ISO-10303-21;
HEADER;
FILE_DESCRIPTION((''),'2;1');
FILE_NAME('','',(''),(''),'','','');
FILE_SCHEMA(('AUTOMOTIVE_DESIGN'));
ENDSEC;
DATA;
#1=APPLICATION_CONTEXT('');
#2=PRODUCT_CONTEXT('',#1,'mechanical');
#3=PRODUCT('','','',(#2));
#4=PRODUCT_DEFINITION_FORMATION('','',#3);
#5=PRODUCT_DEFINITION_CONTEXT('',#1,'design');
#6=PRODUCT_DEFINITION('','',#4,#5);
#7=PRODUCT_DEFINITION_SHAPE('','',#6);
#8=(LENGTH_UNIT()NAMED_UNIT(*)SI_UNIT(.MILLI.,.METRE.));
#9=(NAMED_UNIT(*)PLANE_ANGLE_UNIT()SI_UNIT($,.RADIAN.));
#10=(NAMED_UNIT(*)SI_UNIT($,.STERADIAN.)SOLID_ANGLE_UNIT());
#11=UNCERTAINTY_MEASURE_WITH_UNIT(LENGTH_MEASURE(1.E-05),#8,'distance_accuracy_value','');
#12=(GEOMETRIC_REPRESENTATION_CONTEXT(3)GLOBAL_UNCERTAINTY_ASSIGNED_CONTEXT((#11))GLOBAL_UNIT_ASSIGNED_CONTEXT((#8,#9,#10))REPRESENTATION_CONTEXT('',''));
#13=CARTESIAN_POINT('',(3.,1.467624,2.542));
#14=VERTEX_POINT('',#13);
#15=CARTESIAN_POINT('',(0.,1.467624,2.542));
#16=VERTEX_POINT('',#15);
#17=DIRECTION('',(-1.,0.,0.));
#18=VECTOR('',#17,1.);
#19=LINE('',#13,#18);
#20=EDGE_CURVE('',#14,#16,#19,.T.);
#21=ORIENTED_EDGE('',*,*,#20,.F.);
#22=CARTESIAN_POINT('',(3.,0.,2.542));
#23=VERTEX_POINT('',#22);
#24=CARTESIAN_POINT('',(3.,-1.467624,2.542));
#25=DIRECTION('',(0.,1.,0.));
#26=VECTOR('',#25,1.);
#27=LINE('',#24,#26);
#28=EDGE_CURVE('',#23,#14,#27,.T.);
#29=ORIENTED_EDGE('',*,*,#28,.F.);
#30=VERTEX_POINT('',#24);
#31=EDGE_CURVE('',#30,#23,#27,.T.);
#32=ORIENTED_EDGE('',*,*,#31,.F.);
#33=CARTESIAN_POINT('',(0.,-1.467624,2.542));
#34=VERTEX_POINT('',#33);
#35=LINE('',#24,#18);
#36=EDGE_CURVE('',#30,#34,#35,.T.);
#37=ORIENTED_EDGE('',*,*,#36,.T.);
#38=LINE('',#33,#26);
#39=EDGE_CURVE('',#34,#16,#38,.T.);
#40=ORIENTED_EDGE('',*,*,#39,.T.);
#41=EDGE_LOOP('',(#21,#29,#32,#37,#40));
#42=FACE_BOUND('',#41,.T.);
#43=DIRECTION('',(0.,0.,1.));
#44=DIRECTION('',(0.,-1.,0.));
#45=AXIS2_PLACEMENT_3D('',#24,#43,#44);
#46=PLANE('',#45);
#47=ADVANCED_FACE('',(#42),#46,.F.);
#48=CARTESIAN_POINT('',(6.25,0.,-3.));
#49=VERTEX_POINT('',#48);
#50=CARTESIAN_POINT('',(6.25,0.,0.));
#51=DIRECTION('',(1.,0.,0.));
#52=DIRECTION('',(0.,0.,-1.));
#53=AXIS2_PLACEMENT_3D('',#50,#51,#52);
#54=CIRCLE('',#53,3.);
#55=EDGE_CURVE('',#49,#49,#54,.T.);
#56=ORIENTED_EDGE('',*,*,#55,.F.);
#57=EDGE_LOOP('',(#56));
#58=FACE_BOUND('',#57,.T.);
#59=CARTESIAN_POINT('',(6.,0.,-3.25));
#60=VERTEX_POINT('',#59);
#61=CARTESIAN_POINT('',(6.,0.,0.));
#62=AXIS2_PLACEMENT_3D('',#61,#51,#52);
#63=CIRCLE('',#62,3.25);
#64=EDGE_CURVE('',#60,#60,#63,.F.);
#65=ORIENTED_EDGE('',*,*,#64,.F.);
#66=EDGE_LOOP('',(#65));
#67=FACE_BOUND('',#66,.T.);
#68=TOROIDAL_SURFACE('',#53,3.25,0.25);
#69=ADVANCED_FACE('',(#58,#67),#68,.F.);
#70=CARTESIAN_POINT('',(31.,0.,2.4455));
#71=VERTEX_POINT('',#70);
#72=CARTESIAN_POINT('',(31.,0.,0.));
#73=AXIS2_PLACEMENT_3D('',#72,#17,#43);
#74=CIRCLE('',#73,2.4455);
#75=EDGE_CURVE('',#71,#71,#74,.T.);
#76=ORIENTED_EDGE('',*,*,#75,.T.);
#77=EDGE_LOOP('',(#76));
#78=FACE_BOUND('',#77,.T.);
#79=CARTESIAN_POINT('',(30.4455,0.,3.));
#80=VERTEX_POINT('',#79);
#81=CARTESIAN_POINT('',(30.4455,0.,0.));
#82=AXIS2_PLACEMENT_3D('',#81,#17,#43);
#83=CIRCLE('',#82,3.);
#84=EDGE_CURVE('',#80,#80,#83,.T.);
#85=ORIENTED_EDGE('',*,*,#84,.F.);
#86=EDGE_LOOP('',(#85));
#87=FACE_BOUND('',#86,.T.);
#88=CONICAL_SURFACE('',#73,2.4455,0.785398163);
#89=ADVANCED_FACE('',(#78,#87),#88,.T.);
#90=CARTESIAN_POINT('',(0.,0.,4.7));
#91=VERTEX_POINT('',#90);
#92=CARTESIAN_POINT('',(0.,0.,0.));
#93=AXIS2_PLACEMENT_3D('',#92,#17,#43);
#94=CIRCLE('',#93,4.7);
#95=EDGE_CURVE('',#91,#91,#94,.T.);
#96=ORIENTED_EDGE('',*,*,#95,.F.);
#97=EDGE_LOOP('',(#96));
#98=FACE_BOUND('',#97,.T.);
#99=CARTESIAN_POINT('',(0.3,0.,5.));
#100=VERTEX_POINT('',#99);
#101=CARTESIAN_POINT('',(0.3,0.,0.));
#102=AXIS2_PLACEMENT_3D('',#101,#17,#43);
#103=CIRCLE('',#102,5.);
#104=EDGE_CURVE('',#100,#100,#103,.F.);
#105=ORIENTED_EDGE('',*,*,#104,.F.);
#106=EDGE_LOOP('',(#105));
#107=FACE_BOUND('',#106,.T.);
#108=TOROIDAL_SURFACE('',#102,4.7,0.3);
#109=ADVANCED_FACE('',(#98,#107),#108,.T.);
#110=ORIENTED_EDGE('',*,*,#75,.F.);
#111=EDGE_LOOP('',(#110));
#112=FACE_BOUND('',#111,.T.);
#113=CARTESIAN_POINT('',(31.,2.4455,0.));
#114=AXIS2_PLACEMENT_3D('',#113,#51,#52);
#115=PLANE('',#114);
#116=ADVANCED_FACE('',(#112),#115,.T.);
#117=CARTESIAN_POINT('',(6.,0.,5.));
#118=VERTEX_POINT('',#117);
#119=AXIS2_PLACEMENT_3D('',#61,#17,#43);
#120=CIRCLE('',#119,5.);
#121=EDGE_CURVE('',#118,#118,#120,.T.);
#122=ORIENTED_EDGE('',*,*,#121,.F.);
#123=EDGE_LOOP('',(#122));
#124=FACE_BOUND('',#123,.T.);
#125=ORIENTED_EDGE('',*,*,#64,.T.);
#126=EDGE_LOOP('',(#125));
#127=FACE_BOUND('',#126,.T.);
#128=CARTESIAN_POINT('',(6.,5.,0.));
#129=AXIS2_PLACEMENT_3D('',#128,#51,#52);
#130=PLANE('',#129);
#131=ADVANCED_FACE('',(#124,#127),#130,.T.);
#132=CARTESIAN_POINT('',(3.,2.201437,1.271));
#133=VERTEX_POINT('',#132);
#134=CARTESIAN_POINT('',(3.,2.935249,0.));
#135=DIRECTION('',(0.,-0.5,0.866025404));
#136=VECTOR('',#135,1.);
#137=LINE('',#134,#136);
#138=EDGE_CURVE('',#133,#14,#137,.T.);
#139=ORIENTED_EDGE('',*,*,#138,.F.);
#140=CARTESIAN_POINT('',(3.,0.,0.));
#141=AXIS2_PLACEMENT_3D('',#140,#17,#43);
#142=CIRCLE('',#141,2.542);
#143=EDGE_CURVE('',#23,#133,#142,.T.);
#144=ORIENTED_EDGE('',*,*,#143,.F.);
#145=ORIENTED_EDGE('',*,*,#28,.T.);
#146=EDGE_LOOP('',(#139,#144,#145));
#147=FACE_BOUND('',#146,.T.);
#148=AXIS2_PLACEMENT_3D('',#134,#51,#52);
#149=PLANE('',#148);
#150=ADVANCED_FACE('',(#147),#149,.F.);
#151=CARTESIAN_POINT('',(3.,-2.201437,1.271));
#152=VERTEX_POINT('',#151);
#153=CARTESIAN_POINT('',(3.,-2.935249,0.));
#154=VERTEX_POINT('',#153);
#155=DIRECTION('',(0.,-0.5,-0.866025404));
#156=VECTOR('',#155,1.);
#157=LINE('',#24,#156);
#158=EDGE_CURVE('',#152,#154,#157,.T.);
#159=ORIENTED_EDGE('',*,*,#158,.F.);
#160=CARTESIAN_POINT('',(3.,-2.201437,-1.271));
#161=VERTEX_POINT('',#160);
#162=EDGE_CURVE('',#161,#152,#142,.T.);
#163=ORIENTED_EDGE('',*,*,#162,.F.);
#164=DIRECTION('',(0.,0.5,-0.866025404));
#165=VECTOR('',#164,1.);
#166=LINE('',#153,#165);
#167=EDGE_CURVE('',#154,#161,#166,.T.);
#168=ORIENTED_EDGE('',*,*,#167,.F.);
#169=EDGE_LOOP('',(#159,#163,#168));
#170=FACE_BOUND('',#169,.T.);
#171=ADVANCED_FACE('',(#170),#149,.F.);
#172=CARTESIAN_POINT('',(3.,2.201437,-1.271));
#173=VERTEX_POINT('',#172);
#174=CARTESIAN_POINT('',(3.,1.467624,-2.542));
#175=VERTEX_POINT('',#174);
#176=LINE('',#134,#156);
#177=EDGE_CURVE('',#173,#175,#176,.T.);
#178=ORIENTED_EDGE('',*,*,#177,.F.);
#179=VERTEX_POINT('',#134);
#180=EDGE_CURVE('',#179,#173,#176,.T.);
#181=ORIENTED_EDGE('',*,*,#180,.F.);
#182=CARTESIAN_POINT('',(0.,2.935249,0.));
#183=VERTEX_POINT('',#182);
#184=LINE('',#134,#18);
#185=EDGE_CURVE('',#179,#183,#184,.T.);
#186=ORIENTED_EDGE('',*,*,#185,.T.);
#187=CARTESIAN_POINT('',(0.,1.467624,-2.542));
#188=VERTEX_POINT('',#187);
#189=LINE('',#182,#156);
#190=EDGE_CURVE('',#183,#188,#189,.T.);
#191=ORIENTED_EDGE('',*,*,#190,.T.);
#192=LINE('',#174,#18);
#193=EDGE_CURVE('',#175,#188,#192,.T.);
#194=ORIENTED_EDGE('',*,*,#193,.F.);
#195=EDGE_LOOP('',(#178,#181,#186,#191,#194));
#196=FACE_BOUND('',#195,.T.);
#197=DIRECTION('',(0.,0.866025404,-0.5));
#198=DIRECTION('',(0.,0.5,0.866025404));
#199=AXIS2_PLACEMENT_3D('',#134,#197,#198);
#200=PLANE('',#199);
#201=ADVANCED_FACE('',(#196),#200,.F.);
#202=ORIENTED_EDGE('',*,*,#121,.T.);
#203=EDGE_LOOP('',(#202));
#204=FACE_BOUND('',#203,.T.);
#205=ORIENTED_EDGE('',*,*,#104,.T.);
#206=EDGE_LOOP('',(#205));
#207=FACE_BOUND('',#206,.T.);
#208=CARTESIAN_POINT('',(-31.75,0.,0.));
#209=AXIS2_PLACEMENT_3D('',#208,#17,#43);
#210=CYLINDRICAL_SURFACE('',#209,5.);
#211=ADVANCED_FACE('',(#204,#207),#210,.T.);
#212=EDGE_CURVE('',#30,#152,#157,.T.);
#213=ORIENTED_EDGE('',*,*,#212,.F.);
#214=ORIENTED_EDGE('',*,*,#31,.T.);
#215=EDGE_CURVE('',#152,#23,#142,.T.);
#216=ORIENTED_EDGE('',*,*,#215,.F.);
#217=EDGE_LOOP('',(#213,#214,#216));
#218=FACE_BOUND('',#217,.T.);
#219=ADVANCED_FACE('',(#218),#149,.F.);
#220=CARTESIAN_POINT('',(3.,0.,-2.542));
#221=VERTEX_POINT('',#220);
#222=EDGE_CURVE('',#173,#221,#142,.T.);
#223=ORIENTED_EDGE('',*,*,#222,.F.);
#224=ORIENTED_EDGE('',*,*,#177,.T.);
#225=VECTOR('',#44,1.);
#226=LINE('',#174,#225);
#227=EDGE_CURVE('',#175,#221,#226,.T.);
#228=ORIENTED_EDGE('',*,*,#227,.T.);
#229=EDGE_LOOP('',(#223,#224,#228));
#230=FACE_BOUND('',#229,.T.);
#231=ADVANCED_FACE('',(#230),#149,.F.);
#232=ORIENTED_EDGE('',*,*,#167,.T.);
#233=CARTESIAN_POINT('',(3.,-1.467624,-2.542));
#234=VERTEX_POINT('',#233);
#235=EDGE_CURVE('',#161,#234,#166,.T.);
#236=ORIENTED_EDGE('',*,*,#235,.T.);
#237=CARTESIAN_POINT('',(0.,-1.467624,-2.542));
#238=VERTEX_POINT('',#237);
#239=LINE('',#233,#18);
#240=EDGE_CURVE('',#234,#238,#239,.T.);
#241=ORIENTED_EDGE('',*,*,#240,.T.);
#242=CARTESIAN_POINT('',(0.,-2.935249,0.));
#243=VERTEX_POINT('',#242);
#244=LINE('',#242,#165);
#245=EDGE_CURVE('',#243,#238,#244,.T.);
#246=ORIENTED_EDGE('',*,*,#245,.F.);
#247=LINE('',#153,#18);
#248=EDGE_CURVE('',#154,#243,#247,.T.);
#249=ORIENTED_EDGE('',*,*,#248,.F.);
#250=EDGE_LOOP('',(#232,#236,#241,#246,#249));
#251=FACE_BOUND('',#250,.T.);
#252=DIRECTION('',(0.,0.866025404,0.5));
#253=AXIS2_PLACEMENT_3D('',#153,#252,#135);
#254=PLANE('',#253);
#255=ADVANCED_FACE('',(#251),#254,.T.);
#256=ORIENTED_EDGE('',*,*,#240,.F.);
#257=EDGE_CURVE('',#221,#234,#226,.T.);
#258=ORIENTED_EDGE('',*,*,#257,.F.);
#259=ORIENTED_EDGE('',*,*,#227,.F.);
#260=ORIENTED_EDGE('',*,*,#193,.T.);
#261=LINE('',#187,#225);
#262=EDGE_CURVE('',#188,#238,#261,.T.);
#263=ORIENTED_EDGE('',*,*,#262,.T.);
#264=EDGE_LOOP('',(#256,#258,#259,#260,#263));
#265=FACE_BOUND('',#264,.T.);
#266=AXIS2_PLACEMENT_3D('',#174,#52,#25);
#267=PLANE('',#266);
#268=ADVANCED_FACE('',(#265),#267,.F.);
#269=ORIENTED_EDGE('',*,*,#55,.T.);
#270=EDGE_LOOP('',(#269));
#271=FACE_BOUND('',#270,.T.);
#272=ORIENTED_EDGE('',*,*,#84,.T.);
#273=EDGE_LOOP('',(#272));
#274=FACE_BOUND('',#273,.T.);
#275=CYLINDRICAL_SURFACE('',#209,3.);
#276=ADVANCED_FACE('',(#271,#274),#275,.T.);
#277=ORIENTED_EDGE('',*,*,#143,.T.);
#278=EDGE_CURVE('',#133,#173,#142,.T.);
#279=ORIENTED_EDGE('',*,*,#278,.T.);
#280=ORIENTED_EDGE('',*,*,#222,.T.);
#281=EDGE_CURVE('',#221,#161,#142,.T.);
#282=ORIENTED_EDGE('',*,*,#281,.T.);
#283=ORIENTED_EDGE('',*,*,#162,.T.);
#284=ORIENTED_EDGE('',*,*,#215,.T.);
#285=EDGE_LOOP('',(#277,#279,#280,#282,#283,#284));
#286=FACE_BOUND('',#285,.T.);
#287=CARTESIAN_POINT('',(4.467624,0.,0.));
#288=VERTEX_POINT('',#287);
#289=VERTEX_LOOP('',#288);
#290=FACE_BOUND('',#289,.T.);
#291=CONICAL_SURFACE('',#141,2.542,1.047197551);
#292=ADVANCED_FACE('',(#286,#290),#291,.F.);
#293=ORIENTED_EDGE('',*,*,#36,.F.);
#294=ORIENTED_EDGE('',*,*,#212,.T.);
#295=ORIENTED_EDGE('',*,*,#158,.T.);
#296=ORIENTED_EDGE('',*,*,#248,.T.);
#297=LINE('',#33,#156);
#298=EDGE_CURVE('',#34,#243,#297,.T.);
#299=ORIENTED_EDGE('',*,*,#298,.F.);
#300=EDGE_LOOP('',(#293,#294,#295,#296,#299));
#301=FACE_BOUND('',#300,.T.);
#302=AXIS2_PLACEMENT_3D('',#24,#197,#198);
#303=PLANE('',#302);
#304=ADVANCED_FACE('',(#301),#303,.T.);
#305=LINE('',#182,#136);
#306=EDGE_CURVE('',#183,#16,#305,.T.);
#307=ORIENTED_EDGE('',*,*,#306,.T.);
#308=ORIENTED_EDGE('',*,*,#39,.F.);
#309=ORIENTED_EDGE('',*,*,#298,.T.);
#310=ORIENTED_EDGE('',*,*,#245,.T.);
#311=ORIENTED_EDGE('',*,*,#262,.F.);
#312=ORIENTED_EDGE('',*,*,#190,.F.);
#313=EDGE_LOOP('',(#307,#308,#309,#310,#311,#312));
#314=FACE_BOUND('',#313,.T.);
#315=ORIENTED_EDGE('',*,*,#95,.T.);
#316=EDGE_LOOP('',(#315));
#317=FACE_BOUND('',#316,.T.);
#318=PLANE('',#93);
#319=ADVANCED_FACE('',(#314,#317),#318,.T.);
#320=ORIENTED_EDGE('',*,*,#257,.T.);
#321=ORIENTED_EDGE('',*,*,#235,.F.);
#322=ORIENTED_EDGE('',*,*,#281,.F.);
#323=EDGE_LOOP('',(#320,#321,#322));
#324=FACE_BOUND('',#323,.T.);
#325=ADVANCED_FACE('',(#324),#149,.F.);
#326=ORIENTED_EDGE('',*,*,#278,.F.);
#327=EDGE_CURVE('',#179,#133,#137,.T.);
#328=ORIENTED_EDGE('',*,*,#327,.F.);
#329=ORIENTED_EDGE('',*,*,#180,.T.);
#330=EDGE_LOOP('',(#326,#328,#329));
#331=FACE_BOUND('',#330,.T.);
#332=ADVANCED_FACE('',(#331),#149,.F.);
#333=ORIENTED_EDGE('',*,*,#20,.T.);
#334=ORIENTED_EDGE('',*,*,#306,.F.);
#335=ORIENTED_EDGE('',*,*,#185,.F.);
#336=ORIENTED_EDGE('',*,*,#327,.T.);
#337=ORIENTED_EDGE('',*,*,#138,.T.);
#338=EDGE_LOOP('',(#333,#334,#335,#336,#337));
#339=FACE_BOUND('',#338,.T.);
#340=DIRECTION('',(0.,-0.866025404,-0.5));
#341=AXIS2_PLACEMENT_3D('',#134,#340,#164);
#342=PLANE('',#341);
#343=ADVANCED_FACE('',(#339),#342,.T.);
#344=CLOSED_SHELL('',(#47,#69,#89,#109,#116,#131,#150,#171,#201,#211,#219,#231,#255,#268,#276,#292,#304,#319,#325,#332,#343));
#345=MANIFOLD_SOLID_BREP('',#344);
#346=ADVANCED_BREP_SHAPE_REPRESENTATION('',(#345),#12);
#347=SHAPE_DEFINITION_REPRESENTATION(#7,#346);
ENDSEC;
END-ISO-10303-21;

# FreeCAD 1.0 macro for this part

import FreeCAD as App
import Part
import Sketcher
Q = App.Units.Quantity


def edges_at(feature, points):
    """Names of the edges that pass closest to the given points."""
    edges = feature.Shape.Edges
    near = lambda p: min(range(len(edges)), key=lambda i: edges[i].distToShape(Part.Vertex(*p))[0])
    return sorted({f"Edge{near(p) + 1}" for p in points})


def add_polygon(sketch, points):
    """Adds a closed chain of lines whose ends are joined by coincident constraints."""
    first, n = sketch.GeometryCount, len(points)
    for a, b in zip(points, points[1:] + points[:1]):
        sketch.addGeometry(Part.LineSegment(App.Vector(*a, 0), App.Vector(*b, 0)), False)
    for i in range(n):
        sketch.addConstraint(Sketcher.Constraint("Coincident", first + i, 2, first + (i + 1) % n, 1))

doc = App.newDocument("Part")
body = doc.addObject("PartDesign::Body", "Body")

sketch1 = body.newObject("Sketcher::SketchObject", "Sketch")
sketch1.AttachmentSupport = (doc.getObject("XY_Plane"), [""])
sketch1.MapMode = "FlatFace"
add_polygon(sketch1, [(0, 5), (0, 0), (31, 0), (31, 2.4), (30.4, 3), (6, 3), (6, 5)])
sketch1.addConstraint(Sketcher.Constraint("Vertical", 0))
sketch1.addConstraint(Sketcher.Constraint("Horizontal", 1))
sketch1.addConstraint(Sketcher.Constraint("Vertical", 2))
sketch1.addConstraint(Sketcher.Constraint("Horizontal", 4))
sketch1.addConstraint(Sketcher.Constraint("Vertical", 5))
sketch1.addConstraint(Sketcher.Constraint("Horizontal", 6))
sketch1.addConstraint(Sketcher.Constraint("Coincident", 0, 2, -1, 1))
sketch1.addConstraint(Sketcher.Constraint("DistanceX", 1, 1, 1, 2, 31.0))
sketch1.addConstraint(Sketcher.Constraint("DistanceX", 6, 2, 6, 1, 6.0))
sketch1.addConstraint(Sketcher.Constraint("DistanceY", 0, 2, 0, 1, 5.0))
sketch1.addConstraint(Sketcher.Constraint("DistanceY", 5, 1, 5, 2, 2.0))
sketch1.addConstraint(Sketcher.Constraint("Angle", 3, Q("135 deg")))
sketch1.addConstraint(Sketcher.Constraint("DistanceX", 4, 2, 4, 1, 24.4455))
revolution = body.newObject("PartDesign::Revolution", "Revolution")
revolution.Profile = sketch1
revolution.ReferenceAxis = (sketch1, ["H_Axis"])
revolution.Angle = 360
doc.recompute()

fillet = body.newObject("PartDesign::Fillet", "Fillet")
fillet.Base = (revolution, edges_at(revolution, [(6, 0, -3)]))
fillet.Radius = 0.25
doc.recompute()

fillet2 = body.newObject("PartDesign::Fillet", "Fillet001")
fillet2.Base = (fillet, edges_at(fillet, [(0, 0, -5)]))
fillet2.Radius = 0.3

sketch2 = body.newObject("Sketcher::SketchObject", "Sketch001")
sketch2.AttachmentSupport = (doc.getObject("XY_Plane"), [""])
sketch2.MapMode = "FlatFace"
add_polygon(sketch2, [(3, 2.5), (0, 2.5), (0, 0), (4.5, 0)])
sketch2.addConstraint(Sketcher.Constraint("Horizontal", 0))
sketch2.addConstraint(Sketcher.Constraint("Vertical", 1))
sketch2.addConstraint(Sketcher.Constraint("Horizontal", 2))
sketch2.addConstraint(Sketcher.Constraint("Coincident", 1, 2, -1, 1))
sketch2.addConstraint(Sketcher.Constraint("DistanceX", 0, 2, 0, 1, 3.0))
sketch2.addConstraint(Sketcher.Constraint("Angle", 3, Q("120 deg")))
sketch2.addConstraint(Sketcher.Constraint("DistanceY", 1, 2, 1, 1, 2.542))
groove = body.newObject("PartDesign::Groove", "Groove")
groove.Profile = sketch2
groove.ReferenceAxis = (sketch2, ["H_Axis"])
groove.Angle = 360

sketch3 = body.newObject("Sketcher::SketchObject", "Sketch002")
sketch3.AttachmentSupport = (doc.getObject("YZ_Plane"), [""])
sketch3.MapMode = "FlatFace"
add_polygon(sketch3, [(2.9, 0), (1.5, -2.5), (-1.5, -2.5), (-2.9, 0), (-1.5, 2.5), (1.5, 2.5)])
sketch3.addConstraint(Sketcher.Constraint("Horizontal", 1))
sketch3.addConstraint(Sketcher.Constraint("Horizontal", 4))
sketch3.addConstraint(Sketcher.Constraint("Symmetric", 0, 2, 3, 2, -1, 1))
sketch3.addConstraint(Sketcher.Constraint("Symmetric", 2, 2, 5, 2, -1, 1))
sketch3.addConstraint(Sketcher.Constraint("PointOnObject", 2, 2, -1))
sketch3.addConstraint(Sketcher.Constraint("Parallel", 2, 5))
sketch3.addConstraint(Sketcher.Constraint("Vertical", 1, 2, 3, 2))
sketch3.addConstraint(Sketcher.Constraint("Angle", 0, Q("-120 deg")))
sketch3.addConstraint(Sketcher.Constraint("DistanceY", 0, 2, -1, 1, 2.542))
sketch3.addConstraint(Sketcher.Constraint("DistanceX", 1, 2, 1, 1, 2.935249))
pocket1 = body.newObject("PartDesign::Pocket", "Pocket")
pocket1.Profile = sketch3
pocket1.Length = 3
pocket1.Reversed = True

doc.recompute()
